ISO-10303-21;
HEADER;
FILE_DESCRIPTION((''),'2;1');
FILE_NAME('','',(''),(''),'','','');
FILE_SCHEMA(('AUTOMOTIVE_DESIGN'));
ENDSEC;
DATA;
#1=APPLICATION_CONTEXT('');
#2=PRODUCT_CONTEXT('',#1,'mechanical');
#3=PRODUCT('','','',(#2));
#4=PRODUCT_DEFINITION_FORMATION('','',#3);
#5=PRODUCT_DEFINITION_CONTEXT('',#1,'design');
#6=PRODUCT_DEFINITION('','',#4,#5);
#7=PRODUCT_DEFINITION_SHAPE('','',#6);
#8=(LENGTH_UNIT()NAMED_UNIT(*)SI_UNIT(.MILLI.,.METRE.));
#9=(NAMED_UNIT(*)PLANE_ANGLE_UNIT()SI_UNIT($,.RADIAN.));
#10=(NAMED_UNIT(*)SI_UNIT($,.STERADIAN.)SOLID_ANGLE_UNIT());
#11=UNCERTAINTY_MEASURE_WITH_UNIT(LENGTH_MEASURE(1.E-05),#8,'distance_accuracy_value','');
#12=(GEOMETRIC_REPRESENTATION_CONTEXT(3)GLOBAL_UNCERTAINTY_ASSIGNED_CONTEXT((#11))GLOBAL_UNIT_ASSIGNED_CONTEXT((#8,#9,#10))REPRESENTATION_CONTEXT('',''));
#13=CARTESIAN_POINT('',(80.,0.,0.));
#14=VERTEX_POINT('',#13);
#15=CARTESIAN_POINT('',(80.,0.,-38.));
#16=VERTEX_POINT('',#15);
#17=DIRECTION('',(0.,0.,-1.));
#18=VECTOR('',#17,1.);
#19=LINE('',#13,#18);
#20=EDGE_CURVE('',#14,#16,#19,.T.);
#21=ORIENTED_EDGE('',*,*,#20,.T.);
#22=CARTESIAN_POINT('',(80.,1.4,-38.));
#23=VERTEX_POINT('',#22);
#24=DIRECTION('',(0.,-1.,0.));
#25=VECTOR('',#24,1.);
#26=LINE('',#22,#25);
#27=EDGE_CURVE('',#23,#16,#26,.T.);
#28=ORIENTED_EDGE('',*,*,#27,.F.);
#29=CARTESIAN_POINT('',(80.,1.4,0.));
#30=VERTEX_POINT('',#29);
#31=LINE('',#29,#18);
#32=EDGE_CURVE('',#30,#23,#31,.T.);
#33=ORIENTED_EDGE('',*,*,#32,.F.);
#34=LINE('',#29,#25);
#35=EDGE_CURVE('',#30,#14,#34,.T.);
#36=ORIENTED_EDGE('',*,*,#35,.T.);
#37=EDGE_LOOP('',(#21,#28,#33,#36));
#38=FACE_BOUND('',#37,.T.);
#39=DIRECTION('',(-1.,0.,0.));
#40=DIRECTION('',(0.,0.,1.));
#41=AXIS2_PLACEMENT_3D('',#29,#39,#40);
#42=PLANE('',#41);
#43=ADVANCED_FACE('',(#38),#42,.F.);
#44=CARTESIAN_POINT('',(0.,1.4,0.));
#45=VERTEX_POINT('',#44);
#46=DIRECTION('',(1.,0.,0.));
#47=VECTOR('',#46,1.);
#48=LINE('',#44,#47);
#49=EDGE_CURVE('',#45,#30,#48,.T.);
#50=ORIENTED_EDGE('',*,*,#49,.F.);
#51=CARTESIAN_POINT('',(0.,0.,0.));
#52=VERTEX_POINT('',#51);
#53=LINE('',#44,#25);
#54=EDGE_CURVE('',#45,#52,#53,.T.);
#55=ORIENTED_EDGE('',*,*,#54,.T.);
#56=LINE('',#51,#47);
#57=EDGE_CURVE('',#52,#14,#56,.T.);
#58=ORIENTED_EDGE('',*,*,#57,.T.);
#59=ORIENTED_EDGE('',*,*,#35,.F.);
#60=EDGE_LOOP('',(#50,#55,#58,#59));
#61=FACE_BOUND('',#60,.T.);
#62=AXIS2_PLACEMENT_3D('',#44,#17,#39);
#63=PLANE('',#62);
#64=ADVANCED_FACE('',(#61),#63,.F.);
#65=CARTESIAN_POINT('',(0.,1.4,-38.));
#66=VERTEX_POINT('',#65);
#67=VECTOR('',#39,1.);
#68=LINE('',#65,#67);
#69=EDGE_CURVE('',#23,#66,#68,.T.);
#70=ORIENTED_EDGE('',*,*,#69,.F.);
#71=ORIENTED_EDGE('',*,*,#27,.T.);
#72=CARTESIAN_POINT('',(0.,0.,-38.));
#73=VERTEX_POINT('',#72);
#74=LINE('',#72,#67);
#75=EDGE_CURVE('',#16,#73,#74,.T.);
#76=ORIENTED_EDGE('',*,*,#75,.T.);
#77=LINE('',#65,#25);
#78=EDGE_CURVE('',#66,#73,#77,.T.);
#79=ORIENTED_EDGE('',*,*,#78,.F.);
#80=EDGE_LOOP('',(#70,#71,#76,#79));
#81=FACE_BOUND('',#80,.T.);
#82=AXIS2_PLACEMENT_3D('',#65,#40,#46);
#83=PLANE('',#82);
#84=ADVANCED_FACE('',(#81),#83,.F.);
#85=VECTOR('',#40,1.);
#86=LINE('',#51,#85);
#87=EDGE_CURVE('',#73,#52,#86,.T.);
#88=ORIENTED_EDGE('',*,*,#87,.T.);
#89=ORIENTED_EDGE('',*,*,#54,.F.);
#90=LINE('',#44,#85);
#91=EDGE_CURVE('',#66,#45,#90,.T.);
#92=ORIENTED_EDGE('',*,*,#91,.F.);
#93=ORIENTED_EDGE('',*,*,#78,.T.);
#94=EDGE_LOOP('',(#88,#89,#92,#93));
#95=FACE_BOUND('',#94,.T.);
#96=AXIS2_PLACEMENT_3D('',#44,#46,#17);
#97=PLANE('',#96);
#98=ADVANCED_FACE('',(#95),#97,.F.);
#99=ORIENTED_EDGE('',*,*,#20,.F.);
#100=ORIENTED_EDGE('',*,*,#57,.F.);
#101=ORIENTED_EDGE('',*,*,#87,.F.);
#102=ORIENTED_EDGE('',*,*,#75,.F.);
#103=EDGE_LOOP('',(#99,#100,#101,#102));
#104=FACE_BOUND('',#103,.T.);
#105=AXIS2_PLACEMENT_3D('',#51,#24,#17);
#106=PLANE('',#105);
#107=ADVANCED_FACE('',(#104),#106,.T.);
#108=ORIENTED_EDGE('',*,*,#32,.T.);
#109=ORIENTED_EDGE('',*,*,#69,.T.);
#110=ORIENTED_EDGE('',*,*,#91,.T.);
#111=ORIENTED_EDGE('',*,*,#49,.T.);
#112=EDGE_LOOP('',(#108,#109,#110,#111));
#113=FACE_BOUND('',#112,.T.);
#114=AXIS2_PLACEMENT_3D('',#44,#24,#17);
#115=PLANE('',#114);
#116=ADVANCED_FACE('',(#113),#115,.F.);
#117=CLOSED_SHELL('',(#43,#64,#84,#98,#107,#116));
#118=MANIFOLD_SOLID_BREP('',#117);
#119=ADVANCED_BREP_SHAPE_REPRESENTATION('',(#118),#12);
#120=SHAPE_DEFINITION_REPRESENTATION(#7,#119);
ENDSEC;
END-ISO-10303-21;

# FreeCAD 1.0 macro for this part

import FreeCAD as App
import Part
import Sketcher
from FreeCAD import Vector


def add_polygon(sketch, points):
    """Adds a closed chain of lines whose ends are joined by coincident constraints."""
    first, n = sketch.GeometryCount, len(points)
    for a, b in zip(points, points[1:] + points[:1]):
        sketch.addGeometry(Part.LineSegment(App.Vector(*a, 0), App.Vector(*b, 0)), False)
    for i in range(n):
        sketch.addConstraint(Sketcher.Constraint("Coincident", first + i, 2, first + (i + 1) % n, 1))

doc = App.newDocument("Part")
params = doc.addObject("Spreadsheet::Sheet", "Params")
for row, (alias, value) in enumerate([
    ("sketch1_width", "80 mm"),
    ("sketch1_height", "38 mm"),
    ("pad1_length", "1.4 mm"),
], start=1):
    params.set(f"A{row}", alias)
    params.set(f"B{row}", "=" + value)
    params.setAlias(f"B{row}", alias)

body = doc.addObject("PartDesign::Body", "Body")

sketch1 = body.newObject("Sketcher::SketchObject", "Sketch")
sketch1.AttachmentSupport = (doc.getObject("XZ_Plane"), [""])
sketch1.MapMode = "FlatFace"
add_polygon(sketch1, [(0, -38), (0, 0), (80, 0), (80, -38)])
sketch1.addConstraint(Sketcher.Constraint("Vertical", 0))
sketch1.addConstraint(Sketcher.Constraint("Horizontal", 1))
sketch1.addConstraint(Sketcher.Constraint("Vertical", 2))
sketch1.addConstraint(Sketcher.Constraint("Horizontal", 3))
sketch1.addConstraint(Sketcher.Constraint("Coincident", 0, 2, -1, 1))
sketch1.addConstraint(Sketcher.Constraint("DistanceX", 1, 1, 1, 2, 80.0))
sketch1.addConstraint(Sketcher.Constraint("DistanceY", 0, 1, 0, 2, 38.0))
sketch1.setExpression("Constraints[9]", "Params.sketch1_width")
sketch1.setExpression("Constraints[10]", "Params.sketch1_height")
pad1 = body.newObject("PartDesign::Pad", "Pad")
pad1.Profile = sketch1
pad1.setExpression("Length", "Params.pad1_length")
pad1.Reversed = True

doc.recompute()
